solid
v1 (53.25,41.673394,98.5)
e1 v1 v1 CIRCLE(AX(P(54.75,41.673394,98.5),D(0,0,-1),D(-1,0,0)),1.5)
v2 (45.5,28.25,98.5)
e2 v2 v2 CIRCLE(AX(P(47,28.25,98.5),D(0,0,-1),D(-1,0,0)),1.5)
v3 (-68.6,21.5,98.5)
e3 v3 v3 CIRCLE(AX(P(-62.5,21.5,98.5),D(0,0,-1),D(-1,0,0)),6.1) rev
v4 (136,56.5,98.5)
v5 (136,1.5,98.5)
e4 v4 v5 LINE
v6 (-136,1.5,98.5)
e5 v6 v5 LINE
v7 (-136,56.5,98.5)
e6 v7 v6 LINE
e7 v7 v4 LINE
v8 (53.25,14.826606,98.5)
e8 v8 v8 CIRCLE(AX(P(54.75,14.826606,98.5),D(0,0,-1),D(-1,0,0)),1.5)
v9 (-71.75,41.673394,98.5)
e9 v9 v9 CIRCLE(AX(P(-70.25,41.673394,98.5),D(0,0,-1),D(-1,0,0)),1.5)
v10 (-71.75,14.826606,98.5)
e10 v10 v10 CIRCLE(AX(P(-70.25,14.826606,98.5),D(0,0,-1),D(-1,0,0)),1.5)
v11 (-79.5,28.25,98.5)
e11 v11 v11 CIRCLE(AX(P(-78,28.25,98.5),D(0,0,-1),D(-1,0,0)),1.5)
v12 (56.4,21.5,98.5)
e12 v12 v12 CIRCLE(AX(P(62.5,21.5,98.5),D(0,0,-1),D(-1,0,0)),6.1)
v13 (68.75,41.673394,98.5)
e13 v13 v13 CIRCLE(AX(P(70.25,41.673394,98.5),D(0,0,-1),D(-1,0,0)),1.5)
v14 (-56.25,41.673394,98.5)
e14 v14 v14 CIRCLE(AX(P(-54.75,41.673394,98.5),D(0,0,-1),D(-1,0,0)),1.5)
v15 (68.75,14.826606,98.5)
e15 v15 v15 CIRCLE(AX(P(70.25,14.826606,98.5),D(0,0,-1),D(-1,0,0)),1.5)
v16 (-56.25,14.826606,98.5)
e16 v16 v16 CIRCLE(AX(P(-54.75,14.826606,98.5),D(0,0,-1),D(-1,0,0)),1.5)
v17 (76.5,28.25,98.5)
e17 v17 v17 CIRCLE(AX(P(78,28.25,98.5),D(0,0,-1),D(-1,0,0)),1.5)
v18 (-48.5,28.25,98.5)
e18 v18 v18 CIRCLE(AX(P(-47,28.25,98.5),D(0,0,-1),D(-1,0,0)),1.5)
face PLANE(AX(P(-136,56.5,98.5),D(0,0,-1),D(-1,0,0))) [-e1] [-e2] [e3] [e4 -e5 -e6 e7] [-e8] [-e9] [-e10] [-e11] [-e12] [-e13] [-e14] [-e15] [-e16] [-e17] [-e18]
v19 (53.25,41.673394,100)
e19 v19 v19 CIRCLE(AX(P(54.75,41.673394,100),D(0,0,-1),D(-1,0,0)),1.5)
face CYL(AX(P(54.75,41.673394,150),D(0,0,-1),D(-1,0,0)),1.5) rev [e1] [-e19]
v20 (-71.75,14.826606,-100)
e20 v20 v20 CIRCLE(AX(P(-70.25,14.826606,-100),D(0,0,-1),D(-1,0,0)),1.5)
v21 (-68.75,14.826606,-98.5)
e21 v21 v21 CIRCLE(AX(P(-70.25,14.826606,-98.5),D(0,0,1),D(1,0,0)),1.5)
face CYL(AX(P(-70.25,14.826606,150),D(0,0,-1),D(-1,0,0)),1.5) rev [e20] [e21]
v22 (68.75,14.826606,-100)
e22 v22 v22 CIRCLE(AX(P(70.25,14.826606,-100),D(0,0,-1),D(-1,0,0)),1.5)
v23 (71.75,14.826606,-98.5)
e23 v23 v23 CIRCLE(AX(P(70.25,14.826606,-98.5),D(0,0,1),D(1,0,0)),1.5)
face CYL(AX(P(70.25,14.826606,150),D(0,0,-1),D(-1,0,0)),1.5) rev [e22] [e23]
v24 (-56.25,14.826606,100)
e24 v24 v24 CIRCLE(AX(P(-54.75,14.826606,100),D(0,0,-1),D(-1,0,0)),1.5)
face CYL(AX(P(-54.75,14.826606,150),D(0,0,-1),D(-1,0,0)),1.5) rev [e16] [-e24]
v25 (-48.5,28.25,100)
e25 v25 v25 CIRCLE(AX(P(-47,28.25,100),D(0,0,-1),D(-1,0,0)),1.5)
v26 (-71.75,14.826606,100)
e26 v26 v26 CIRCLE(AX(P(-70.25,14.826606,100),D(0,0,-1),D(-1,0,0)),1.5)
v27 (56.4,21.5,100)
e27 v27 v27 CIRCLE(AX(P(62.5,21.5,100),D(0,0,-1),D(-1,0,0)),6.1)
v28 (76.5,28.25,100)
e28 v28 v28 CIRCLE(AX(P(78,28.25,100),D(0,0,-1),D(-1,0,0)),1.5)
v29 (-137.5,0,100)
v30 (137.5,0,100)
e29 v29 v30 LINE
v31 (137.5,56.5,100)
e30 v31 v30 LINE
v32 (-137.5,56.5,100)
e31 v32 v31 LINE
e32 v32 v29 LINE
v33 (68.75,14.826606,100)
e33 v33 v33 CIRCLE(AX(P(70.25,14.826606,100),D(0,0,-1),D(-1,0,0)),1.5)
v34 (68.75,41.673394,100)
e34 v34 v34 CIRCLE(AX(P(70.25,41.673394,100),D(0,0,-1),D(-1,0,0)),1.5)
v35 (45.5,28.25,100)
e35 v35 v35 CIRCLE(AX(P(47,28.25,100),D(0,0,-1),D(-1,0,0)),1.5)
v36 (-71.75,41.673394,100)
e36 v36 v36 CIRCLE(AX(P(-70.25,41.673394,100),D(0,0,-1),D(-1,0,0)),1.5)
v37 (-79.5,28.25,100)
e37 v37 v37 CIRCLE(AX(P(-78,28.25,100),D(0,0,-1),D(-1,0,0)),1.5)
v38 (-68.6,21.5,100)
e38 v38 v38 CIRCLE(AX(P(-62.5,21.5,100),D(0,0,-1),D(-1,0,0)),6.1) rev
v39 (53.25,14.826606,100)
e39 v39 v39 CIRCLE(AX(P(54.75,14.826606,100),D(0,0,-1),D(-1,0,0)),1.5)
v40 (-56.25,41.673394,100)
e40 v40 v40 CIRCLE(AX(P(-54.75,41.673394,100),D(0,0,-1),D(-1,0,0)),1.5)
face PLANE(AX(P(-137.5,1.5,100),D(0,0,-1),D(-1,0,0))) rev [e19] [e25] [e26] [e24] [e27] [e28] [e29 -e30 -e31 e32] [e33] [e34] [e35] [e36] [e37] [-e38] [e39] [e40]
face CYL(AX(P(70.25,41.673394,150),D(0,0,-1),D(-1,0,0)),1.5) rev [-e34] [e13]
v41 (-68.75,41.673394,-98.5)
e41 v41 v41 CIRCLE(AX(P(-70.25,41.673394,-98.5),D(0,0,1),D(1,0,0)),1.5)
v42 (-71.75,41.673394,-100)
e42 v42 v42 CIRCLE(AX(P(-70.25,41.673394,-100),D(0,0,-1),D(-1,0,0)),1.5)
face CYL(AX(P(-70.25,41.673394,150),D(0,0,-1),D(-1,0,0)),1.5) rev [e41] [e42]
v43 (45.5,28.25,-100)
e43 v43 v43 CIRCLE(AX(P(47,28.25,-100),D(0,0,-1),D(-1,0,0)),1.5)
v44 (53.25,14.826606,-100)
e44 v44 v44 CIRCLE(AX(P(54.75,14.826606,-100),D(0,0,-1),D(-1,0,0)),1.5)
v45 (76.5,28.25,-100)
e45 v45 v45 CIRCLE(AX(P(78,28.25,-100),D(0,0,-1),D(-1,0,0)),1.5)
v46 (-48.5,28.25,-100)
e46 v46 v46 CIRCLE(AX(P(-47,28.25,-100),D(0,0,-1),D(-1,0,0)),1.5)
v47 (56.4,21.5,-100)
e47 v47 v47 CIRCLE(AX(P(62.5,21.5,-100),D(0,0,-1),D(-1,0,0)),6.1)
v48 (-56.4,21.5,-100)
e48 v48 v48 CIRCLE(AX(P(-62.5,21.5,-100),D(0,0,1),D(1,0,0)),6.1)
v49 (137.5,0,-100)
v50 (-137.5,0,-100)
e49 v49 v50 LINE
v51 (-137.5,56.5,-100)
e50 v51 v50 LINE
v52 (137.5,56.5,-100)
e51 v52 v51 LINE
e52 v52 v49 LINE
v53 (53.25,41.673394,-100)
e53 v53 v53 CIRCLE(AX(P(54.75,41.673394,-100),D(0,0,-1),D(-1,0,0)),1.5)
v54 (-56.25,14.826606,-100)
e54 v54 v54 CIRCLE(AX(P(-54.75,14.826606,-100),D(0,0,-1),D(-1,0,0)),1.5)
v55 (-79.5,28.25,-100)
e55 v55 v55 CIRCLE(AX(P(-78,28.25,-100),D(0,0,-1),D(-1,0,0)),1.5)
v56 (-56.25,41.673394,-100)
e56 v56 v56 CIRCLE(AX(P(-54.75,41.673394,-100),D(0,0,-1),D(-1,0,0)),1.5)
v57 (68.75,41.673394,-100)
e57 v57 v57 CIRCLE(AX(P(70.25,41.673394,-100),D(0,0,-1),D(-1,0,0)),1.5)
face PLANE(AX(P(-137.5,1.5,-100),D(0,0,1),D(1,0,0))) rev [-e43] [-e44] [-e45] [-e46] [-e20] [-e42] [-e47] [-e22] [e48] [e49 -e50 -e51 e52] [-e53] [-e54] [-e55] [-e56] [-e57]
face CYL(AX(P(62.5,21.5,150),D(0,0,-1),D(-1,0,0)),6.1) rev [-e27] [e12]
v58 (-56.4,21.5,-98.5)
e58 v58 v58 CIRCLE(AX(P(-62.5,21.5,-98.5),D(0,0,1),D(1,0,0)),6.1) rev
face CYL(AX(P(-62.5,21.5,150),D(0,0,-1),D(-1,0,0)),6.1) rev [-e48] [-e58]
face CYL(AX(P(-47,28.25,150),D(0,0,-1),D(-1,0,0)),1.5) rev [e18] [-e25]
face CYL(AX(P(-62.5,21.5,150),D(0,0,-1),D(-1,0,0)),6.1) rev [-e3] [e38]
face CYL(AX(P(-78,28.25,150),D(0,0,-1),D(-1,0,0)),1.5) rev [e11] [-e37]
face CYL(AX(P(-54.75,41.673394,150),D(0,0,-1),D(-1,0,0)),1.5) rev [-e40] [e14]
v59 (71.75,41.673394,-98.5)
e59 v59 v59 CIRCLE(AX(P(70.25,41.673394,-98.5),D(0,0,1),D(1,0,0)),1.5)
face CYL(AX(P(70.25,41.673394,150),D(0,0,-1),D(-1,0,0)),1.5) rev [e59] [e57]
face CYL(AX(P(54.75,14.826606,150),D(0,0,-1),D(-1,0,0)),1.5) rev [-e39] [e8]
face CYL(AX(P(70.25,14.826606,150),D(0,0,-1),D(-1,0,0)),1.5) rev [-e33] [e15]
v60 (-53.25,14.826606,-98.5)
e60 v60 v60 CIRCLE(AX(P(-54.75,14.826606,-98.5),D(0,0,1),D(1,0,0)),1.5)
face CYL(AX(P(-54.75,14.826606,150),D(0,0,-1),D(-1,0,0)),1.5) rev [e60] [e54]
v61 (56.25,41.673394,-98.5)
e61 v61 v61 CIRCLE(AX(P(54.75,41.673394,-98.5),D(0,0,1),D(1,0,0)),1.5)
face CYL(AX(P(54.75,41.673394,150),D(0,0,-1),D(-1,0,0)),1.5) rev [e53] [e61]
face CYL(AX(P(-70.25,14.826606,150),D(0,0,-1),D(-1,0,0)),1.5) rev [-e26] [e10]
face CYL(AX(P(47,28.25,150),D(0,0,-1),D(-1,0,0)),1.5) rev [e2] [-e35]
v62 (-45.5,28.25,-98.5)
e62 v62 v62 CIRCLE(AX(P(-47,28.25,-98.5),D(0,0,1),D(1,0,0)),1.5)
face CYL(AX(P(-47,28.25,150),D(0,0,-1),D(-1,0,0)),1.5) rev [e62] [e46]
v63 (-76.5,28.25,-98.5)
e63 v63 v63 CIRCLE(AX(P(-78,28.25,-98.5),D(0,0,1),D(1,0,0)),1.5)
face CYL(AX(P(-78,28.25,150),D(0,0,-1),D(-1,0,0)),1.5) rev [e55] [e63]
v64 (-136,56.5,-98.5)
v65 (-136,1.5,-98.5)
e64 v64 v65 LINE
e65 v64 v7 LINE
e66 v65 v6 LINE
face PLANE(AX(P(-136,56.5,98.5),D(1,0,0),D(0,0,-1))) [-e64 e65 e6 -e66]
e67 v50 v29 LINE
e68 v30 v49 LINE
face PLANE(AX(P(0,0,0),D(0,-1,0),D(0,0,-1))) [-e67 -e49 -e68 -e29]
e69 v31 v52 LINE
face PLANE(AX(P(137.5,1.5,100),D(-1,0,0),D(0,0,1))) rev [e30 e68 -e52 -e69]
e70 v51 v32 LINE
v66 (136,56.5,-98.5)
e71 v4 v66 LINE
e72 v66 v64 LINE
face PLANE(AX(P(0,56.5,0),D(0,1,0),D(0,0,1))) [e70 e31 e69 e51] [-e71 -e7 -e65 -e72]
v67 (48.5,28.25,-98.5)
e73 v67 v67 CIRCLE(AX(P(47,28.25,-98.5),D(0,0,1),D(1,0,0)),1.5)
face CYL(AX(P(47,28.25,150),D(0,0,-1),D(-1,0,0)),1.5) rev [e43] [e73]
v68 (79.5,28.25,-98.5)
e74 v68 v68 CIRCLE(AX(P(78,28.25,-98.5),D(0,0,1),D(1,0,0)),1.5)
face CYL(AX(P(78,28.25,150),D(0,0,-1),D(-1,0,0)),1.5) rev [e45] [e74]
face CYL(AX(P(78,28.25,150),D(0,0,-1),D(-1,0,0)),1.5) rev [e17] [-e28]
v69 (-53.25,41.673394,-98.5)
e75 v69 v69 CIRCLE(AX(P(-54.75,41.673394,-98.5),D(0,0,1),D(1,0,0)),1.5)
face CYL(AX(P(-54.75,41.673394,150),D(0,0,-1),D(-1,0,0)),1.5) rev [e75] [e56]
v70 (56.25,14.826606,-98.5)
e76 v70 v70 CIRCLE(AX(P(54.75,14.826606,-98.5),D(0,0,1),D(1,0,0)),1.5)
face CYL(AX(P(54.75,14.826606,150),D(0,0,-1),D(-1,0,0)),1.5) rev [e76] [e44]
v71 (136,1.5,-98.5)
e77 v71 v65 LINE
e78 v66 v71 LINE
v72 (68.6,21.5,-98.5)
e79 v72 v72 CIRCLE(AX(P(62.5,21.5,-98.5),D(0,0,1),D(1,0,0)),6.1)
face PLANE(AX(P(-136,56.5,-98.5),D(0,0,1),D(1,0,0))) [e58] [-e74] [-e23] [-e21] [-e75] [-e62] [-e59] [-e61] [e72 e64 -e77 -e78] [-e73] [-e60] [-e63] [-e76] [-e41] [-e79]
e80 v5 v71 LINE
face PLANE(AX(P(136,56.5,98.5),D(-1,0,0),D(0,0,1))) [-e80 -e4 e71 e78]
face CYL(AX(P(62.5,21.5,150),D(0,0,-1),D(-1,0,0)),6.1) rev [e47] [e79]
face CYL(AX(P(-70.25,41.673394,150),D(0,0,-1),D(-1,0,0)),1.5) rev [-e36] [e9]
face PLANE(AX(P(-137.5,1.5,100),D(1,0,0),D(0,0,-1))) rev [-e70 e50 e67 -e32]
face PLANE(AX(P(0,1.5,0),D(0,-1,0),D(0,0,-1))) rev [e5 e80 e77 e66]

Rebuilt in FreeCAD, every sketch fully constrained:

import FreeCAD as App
import Part
import Sketcher


def add_polygon(sketch, points):
    """Adds a closed chain of lines whose ends are joined by coincident constraints."""
    first, n = sketch.GeometryCount, len(points)
    for a, b in zip(points, points[1:] + points[:1]):
        sketch.addGeometry(Part.LineSegment(App.Vector(*a, 0), App.Vector(*b, 0)), False)
    for i in range(n):
        sketch.addConstraint(Sketcher.Constraint("Coincident", first + i, 2, first + (i + 1) % n, 1))

doc = App.newDocument("Part")
body = doc.addObject("PartDesign::Body", "Body")

sketch1 = body.newObject("Sketcher::SketchObject", "Sketch")
sketch1.AttachmentSupport = (doc.getObject("XZ_Plane"), [""])
sketch1.MapMode = "FlatFace"
add_polygon(sketch1, [(-138, -100), (-138, 100), (138, 100), (138, -100)])
sketch1.addConstraint([
    Sketcher.Constraint("Vertical", 0),
    Sketcher.Constraint("Horizontal", 1),
    Sketcher.Constraint("Vertical", 2),
    Sketcher.Constraint("Horizontal", 3),
    Sketcher.Constraint("Symmetric", 0, 2, 2, 2, -1, 1),
    Sketcher.Constraint("DistanceX", 1, 1, 1, 2, 275.0),
    Sketcher.Constraint("DistanceY", 0, 1, 0, 2, 200.0),
])
pad1 = body.newObject("PartDesign::Pad", "Pad")
pad1.Profile = sketch1
pad1.Length = 1.5
pad1.Reversed = True

sketch2 = body.newObject("Sketcher::SketchObject", "Sketch001")
sketch2.AttachmentSupport = (doc.getObject("XZ_Plane"), [""])
sketch2.MapMode = "FlatFace"
sketch2.AttachmentOffset = App.Placement(App.Vector(0, 0, -1.5), App.Rotation())
add_polygon(sketch2, [(-138, -100), (-138, 100), (138, 100), (138, -100)])
add_polygon(sketch2, [(136, 98), (-136, 98), (-136, -98), (136, -98)])
sketch2.addConstraint([
    Sketcher.Constraint("Vertical", 0),
    Sketcher.Constraint("Horizontal", 1),
    Sketcher.Constraint("Vertical", 2),
    Sketcher.Constraint("Horizontal", 3),
    Sketcher.Constraint("Horizontal", 4),
    Sketcher.Constraint("Vertical", 5),
    Sketcher.Constraint("Horizontal", 6),
    Sketcher.Constraint("Vertical", 7),
    Sketcher.Constraint("Symmetric", 0, 2, 2, 2, -1, 1),
    Sketcher.Constraint("Symmetric", 4, 2, 6, 2, -1, 1),
    Sketcher.Constraint("DistanceX", 1, 1, 1, 2, 275.0),
    Sketcher.Constraint("DistanceX", 4, 2, 4, 1, 272.0),
    Sketcher.Constraint("DistanceY", 0, 1, 0, 2, 200.0),
    Sketcher.Constraint("DistanceY", 5, 2, 5, 1, 197.0),
])
pad2 = body.newObject("PartDesign::Pad", "Pad001")
pad2.Profile = sketch2
pad2.Length = 55
pad2.Reversed = True

sketch3 = body.newObject("Sketcher::SketchObject", "Sketch002")
sketch3.AttachmentSupport = (doc.getObject("XY_Plane"), [""])
sketch3.MapMode = "FlatFace"
sketch3.AttachmentOffset = App.Placement(App.Vector(0, 0, -100), App.Rotation())
sketch3.addGeometry([
    Part.Circle(App.Vector(47, 28.2, 0), App.Vector(0, 0, 1), 1.5),
    Part.Circle(App.Vector(54.8, 14.8, 0), App.Vector(0, 0, 1), 1.5),
    Part.Circle(App.Vector(70.2, 14.8, 0), App.Vector(0, 0, 1), 1.5),
    Part.Circle(App.Vector(78, 28.2, 0), App.Vector(0, 0, 1), 1.5),
    Part.Circle(App.Vector(70.2, 41.7, 0), App.Vector(0, 0, 1), 1.5),
    Part.Circle(App.Vector(54.8, 41.7, 0), App.Vector(0, 0, 1), 1.5),
    Part.Circle(App.Vector(-78, 28.2, 0), App.Vector(0, 0, 1), 1.5),
    Part.Circle(App.Vector(-70.2, 14.8, 0), App.Vector(0, 0, 1), 1.5),
    Part.Circle(App.Vector(-54.8, 14.8, 0), App.Vector(0, 0, 1), 1.5),
    Part.Circle(App.Vector(-47, 28.2, 0), App.Vector(0, 0, 1), 1.5),
    Part.Circle(App.Vector(-54.8, 41.7, 0), App.Vector(0, 0, 1), 1.5),
    Part.Circle(App.Vector(-70.2, 41.7, 0), App.Vector(0, 0, 1), 1.5),
    Part.Circle(App.Vector(62.5, 21.5, 0), App.Vector(0, 0, 1), 6.1),
    Part.Circle(App.Vector(-62.5, 21.5, 0), App.Vector(0, 0, 1), 6.1),
], False)
sketch3.addConstraint([
    Sketcher.Constraint("Equal", 0, 1),
    Sketcher.Constraint("Equal", 1, 2),
    Sketcher.Constraint("Equal", 2, 3),
    Sketcher.Constraint("Equal", 3, 4),
    Sketcher.Constraint("Equal", 4, 5),
    Sketcher.Constraint("Equal", 5, 6),
    Sketcher.Constraint("Equal", 6, 7),
    Sketcher.Constraint("Equal", 7, 8),
    Sketcher.Constraint("Equal", 8, 9),
    Sketcher.Constraint("Equal", 9, 10),
    Sketcher.Constraint("Equal", 10, 11),
    Sketcher.Constraint("Equal", 12, 13),
    Sketcher.Constraint("Symmetric", 3, 3, 6, 3, -2),
    Sketcher.Constraint("Symmetric", 2, 3, 7, 3, -2),
    Sketcher.Constraint("Symmetric", 1, 3, 8, 3, -2),
    Sketcher.Constraint("Symmetric", 0, 3, 9, 3, -2),
    Sketcher.Constraint("Symmetric", 5, 3, 10, 3, -2),
    Sketcher.Constraint("Symmetric", 4, 3, 11, 3, -2),
    Sketcher.Constraint("Symmetric", 12, 3, 13, 3, -2),
    Sketcher.Constraint("Horizontal", 1, 3, 2, 3),
    Sketcher.Constraint("Horizontal", 0, 3, 3, 3),
    Sketcher.Constraint("Horizontal", 4, 3, 5, 3),
    Sketcher.Constraint("Vertical", 2, 3, 4, 3),
    Sketcher.Constraint("Vertical", 1, 3, 5, 3),
    Sketcher.Constraint("Diameter", 0, 3.0),
    Sketcher.Constraint("Diameter", 12, 12.2),
    Sketcher.Constraint("DistanceX", -1, 1, 0, 3, 47.0),
    Sketcher.Constraint("DistanceX", -1, 1, 3, 3, 78.0),
    Sketcher.Constraint("DistanceX", 7, 3, 1, 3, 125.0),
    Sketcher.Constraint("DistanceX", -1, 1, 12, 3, 62.5),
    Sketcher.Constraint("DistanceY", -1, 1, 12, 3, 21.5),
    Sketcher.Constraint("DistanceX", 1, 3, 2, 3, 15.5),
    Sketcher.Constraint("DistanceY", -1, 1, 0, 3, 28.25),
    Sketcher.Constraint("DistanceY", -1, 1, 1, 3, 14.826606),
    Sketcher.Constraint("DistanceY", -1, 1, 4, 3, 41.673394),
])
pocket1 = body.newObject("PartDesign::Pocket", "Pocket")
pocket1.Profile = sketch3
pocket1.Length = 250
pocket1.Reversed = True

doc.recompute()
